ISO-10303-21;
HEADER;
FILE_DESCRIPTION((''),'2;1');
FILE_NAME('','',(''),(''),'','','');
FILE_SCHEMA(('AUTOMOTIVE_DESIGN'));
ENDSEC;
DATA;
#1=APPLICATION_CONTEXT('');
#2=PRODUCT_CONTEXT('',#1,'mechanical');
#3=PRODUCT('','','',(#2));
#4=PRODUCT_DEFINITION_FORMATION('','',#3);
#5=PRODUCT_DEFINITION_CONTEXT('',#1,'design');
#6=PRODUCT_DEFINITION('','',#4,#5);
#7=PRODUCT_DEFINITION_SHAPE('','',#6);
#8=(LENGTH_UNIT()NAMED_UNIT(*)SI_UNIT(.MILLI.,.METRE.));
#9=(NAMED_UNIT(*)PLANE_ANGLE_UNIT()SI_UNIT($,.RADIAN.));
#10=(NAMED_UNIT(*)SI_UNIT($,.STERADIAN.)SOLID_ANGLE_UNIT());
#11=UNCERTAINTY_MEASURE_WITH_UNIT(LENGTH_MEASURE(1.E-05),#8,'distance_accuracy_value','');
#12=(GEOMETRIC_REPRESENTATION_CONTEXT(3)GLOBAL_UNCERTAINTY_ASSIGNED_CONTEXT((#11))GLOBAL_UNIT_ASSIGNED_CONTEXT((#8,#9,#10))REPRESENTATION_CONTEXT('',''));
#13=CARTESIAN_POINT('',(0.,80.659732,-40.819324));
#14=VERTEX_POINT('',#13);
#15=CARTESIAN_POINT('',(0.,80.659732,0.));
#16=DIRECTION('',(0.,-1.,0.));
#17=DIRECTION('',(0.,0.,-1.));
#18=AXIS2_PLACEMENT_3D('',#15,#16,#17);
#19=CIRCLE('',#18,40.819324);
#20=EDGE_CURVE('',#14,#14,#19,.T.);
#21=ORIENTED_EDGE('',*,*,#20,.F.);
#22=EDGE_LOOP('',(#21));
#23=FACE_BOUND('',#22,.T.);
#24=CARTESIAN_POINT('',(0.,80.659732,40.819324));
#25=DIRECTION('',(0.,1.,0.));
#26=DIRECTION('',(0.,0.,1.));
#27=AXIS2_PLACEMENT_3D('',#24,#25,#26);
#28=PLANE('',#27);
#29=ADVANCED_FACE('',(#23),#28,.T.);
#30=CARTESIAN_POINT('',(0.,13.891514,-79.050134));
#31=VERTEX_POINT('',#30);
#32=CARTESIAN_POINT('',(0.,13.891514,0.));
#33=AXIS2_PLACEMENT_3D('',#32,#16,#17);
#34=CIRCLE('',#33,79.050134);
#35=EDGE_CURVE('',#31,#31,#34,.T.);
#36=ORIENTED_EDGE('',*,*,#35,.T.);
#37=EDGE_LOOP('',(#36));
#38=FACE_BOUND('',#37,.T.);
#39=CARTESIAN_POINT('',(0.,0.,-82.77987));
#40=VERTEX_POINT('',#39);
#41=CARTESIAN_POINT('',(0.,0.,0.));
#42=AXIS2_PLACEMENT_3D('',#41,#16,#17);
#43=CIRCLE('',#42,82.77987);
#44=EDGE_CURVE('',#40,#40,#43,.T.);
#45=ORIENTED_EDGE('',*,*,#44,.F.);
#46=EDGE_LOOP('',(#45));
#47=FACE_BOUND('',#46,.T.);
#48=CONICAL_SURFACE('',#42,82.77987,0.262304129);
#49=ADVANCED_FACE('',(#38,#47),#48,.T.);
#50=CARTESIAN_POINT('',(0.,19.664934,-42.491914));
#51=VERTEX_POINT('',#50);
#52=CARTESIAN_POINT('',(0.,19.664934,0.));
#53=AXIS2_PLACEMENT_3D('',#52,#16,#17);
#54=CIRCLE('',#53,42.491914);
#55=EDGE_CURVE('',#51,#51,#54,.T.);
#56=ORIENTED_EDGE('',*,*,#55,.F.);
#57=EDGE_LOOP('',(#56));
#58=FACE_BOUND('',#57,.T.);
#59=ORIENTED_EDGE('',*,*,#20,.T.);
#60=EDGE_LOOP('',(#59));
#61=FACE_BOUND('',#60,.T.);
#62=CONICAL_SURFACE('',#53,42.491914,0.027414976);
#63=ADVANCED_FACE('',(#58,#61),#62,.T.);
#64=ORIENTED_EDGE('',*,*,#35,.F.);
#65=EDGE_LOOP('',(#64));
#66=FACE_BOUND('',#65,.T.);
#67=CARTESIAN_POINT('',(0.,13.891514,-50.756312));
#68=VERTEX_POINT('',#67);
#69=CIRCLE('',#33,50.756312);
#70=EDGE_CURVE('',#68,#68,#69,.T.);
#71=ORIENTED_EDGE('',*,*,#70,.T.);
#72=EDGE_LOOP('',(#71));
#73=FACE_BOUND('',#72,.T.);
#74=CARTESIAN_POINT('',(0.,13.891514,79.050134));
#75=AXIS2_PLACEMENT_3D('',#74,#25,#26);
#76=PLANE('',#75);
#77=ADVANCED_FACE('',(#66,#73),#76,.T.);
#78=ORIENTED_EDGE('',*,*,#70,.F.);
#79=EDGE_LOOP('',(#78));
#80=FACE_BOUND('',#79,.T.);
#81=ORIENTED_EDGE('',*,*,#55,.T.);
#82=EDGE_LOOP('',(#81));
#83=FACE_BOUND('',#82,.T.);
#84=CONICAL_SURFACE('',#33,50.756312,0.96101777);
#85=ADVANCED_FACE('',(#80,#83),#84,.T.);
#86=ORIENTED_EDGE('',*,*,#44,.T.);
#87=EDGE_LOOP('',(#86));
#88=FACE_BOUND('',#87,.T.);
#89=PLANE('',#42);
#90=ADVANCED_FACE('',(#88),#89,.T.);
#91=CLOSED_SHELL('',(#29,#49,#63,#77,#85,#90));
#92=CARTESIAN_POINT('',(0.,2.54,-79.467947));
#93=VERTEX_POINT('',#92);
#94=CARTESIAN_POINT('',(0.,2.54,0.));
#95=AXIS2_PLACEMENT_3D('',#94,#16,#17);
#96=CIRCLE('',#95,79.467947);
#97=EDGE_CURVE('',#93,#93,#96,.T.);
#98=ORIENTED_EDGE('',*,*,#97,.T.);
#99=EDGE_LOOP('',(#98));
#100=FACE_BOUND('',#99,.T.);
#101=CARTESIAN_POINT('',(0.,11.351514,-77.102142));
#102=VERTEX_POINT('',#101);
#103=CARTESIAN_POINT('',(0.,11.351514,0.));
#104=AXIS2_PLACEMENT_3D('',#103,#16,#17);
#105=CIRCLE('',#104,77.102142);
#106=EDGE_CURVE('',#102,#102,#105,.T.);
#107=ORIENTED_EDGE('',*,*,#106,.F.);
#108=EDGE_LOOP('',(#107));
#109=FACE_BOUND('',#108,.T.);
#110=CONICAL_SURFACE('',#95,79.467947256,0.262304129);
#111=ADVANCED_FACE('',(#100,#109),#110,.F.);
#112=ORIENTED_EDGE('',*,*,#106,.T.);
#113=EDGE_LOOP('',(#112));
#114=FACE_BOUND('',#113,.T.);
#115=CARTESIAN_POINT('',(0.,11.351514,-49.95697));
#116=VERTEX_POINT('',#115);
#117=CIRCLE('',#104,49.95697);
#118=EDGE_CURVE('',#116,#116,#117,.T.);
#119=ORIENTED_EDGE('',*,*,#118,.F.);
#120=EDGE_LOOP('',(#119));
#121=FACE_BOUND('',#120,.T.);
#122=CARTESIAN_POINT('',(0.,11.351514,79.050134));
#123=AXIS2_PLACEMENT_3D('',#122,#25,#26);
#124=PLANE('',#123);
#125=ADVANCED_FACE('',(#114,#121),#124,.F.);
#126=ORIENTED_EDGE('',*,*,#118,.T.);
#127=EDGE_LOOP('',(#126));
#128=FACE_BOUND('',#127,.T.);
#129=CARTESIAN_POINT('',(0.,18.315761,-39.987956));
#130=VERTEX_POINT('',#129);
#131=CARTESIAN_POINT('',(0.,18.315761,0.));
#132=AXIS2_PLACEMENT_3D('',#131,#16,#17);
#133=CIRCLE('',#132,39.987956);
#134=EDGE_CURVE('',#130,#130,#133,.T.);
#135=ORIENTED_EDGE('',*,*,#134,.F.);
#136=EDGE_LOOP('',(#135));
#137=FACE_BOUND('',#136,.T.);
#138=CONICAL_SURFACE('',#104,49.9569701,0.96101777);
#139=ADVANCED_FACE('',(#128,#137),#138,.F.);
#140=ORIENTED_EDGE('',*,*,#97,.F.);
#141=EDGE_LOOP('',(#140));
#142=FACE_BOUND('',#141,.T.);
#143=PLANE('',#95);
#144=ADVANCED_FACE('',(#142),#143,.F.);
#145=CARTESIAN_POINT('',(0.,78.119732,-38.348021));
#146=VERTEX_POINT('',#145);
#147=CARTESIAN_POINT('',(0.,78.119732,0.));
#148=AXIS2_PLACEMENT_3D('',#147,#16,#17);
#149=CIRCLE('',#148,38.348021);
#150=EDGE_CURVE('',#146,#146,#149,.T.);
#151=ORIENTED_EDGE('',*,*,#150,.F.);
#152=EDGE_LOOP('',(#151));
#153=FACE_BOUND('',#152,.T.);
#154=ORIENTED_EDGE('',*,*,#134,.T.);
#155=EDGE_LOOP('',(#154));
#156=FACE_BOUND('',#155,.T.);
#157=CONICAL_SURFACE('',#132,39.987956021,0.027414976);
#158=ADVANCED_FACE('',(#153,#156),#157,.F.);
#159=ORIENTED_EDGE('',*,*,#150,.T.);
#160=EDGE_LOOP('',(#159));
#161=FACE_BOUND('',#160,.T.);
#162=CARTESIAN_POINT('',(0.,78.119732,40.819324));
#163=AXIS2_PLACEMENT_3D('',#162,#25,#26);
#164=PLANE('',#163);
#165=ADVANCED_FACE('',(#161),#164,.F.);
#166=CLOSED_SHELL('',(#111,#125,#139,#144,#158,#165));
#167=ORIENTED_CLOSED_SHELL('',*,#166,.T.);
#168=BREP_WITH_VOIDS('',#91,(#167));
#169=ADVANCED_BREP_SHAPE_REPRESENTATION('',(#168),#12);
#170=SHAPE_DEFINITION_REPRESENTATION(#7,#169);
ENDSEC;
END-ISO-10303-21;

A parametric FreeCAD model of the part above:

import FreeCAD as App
import Part
import Sketcher
Q = App.Units.Quantity

doc = App.newDocument("Part")
params = doc.addObject("Spreadsheet::Sheet", "Params")
for row, (alias, value) in enumerate([
    ("sketch1_width", "0.1 in"),
    ("revolution_angle", "360 deg"),
], start=1):
    params.set(f"A{row}", alias)
    params.set(f"B{row}", "=" + value)
    params.setAlias(f"B{row}", alias)

body = doc.addObject("PartDesign::Body", "Body")

sketch1 = body.newObject("Sketcher::SketchObject", "Sketch")
sketch1.AttachmentSupport = (doc.getObject("YZ_Plane"), [""])
sketch1.MapMode = "FlatFace"
sketch1.addGeometry([
    Part.LineSegment(App.Vector(0, 82.8, 0), App.Vector(0, 0, 0)),
    Part.LineSegment(App.Vector(0, 0, 0), App.Vector(2.5, 0, 0)),
    Part.LineSegment(App.Vector(2.5, 0, 0), App.Vector(2.5, 79.5, 0)),
    Part.LineSegment(App.Vector(2.5, 79.5, 0), App.Vector(11.4, 77.1, 0)),
    Part.LineSegment(App.Vector(11.4, 77.1, 0), App.Vector(11.4, 50, 0)),
    Part.LineSegment(App.Vector(11.4, 50, 0), App.Vector(18.3, 40, 0)),
    Part.LineSegment(App.Vector(18.3, 40, 0), App.Vector(78.1, 38.3, 0)),
    Part.LineSegment(App.Vector(78.1, 38.3, 0), App.Vector(78.1, 0, 0)),
    Part.LineSegment(App.Vector(78.1, 0, 0), App.Vector(80.7, 0, 0)),
    Part.LineSegment(App.Vector(80.7, 0, 0), App.Vector(80.7, 40.8, 0)),
    Part.LineSegment(App.Vector(80.7, 40.8, 0), App.Vector(19.7, 42.5, 0)),
    Part.LineSegment(App.Vector(19.7, 42.5, 0), App.Vector(13.9, 50.8, 0)),
    Part.LineSegment(App.Vector(13.9, 50.8, 0), App.Vector(13.9, 79.1, 0)),
    Part.LineSegment(App.Vector(13.9, 79.1, 0), App.Vector(0, 82.8, 0)),
], False)
sketch1.addConstraint([
    Sketcher.Constraint("Coincident", 0, 2, 1, 1),
    Sketcher.Constraint("Coincident", 1, 2, 2, 1),
    Sketcher.Constraint("Coincident", 2, 2, 3, 1),
    Sketcher.Constraint("Coincident", 3, 2, 4, 1),
    Sketcher.Constraint("Coincident", 4, 2, 5, 1),
    Sketcher.Constraint("Coincident", 5, 2, 6, 1),
    Sketcher.Constraint("Coincident", 6, 2, 7, 1),
    Sketcher.Constraint("Coincident", 7, 2, 8, 1),
    Sketcher.Constraint("Coincident", 8, 2, 9, 1),
    Sketcher.Constraint("Coincident", 9, 2, 10, 1),
    Sketcher.Constraint("Coincident", 10, 2, 11, 1),
    Sketcher.Constraint("Coincident", 11, 2, 12, 1),
    Sketcher.Constraint("Coincident", 12, 2, 13, 1),
    Sketcher.Constraint("Coincident", 13, 2, 0, 1),
    Sketcher.Constraint("Vertical", 0),
    Sketcher.Constraint("Horizontal", 1),
    Sketcher.Constraint("Vertical", 2),
    Sketcher.Constraint("Vertical", 4),
    Sketcher.Constraint("Vertical", 7),
    Sketcher.Constraint("Horizontal", 8),
    Sketcher.Constraint("Vertical", 9),
    Sketcher.Constraint("Vertical", 12),
    Sketcher.Constraint("Coincident", 0, 2, -1, 1),
    Sketcher.Constraint("PointOnObject", 7, 2, -1),
    Sketcher.Constraint("Parallel", 6, 10),
    Sketcher.Constraint("Parallel", 5, 11),
    Sketcher.Constraint("Parallel", 3, 13),
    Sketcher.Constraint("Equal", 1, 8),
    Sketcher.Constraint("DistanceX", 1, 1, 1, 2, Q("0.1 in")),
    Sketcher.Constraint("DistanceX", 4, 2, 11, 2, Q("0.1 in")),
    Sketcher.Constraint("DistanceX", 4, 2, 10, 2, Q("0.3273 in")),
    Sketcher.Constraint("DistanceY", 10, 2, 4, 2, Q("0.2938998 in")),
    Sketcher.Constraint("DistanceY", 4, 2, 12, 2, Q("1.1454002 in")),
    Sketcher.Constraint("Distance", 13, 14.383501),
    Sketcher.Constraint("DistanceY", 0, 2, 0, 1, 82.77987),
    Sketcher.Constraint("DistanceY", 4, 2, 4, 1, 27.145172),
    Sketcher.Constraint("DistanceY", 7, 2, 7, 1, 38.348021),
    Sketcher.Constraint("DistanceY", 12, 1, 12, 2, 28.293822),
    Sketcher.Constraint("DistanceY", 4, 2, 13, 2, 32.8229),
    Sketcher.Constraint("DistanceY", 9, 1, 9, 2, 40.819324),
    Sketcher.Constraint("DistanceX", -1, 1, 6, 2, 78.119732),
])
sketch1.setExpression("Constraints[28]", "Params.sketch1_width")
revolution = body.newObject("PartDesign::Revolution", "Revolution")
revolution.Profile = sketch1
revolution.ReferenceAxis = (sketch1, ["H_Axis"])
revolution.setExpression("Angle", "Params.revolution_angle")

doc.recompute()
